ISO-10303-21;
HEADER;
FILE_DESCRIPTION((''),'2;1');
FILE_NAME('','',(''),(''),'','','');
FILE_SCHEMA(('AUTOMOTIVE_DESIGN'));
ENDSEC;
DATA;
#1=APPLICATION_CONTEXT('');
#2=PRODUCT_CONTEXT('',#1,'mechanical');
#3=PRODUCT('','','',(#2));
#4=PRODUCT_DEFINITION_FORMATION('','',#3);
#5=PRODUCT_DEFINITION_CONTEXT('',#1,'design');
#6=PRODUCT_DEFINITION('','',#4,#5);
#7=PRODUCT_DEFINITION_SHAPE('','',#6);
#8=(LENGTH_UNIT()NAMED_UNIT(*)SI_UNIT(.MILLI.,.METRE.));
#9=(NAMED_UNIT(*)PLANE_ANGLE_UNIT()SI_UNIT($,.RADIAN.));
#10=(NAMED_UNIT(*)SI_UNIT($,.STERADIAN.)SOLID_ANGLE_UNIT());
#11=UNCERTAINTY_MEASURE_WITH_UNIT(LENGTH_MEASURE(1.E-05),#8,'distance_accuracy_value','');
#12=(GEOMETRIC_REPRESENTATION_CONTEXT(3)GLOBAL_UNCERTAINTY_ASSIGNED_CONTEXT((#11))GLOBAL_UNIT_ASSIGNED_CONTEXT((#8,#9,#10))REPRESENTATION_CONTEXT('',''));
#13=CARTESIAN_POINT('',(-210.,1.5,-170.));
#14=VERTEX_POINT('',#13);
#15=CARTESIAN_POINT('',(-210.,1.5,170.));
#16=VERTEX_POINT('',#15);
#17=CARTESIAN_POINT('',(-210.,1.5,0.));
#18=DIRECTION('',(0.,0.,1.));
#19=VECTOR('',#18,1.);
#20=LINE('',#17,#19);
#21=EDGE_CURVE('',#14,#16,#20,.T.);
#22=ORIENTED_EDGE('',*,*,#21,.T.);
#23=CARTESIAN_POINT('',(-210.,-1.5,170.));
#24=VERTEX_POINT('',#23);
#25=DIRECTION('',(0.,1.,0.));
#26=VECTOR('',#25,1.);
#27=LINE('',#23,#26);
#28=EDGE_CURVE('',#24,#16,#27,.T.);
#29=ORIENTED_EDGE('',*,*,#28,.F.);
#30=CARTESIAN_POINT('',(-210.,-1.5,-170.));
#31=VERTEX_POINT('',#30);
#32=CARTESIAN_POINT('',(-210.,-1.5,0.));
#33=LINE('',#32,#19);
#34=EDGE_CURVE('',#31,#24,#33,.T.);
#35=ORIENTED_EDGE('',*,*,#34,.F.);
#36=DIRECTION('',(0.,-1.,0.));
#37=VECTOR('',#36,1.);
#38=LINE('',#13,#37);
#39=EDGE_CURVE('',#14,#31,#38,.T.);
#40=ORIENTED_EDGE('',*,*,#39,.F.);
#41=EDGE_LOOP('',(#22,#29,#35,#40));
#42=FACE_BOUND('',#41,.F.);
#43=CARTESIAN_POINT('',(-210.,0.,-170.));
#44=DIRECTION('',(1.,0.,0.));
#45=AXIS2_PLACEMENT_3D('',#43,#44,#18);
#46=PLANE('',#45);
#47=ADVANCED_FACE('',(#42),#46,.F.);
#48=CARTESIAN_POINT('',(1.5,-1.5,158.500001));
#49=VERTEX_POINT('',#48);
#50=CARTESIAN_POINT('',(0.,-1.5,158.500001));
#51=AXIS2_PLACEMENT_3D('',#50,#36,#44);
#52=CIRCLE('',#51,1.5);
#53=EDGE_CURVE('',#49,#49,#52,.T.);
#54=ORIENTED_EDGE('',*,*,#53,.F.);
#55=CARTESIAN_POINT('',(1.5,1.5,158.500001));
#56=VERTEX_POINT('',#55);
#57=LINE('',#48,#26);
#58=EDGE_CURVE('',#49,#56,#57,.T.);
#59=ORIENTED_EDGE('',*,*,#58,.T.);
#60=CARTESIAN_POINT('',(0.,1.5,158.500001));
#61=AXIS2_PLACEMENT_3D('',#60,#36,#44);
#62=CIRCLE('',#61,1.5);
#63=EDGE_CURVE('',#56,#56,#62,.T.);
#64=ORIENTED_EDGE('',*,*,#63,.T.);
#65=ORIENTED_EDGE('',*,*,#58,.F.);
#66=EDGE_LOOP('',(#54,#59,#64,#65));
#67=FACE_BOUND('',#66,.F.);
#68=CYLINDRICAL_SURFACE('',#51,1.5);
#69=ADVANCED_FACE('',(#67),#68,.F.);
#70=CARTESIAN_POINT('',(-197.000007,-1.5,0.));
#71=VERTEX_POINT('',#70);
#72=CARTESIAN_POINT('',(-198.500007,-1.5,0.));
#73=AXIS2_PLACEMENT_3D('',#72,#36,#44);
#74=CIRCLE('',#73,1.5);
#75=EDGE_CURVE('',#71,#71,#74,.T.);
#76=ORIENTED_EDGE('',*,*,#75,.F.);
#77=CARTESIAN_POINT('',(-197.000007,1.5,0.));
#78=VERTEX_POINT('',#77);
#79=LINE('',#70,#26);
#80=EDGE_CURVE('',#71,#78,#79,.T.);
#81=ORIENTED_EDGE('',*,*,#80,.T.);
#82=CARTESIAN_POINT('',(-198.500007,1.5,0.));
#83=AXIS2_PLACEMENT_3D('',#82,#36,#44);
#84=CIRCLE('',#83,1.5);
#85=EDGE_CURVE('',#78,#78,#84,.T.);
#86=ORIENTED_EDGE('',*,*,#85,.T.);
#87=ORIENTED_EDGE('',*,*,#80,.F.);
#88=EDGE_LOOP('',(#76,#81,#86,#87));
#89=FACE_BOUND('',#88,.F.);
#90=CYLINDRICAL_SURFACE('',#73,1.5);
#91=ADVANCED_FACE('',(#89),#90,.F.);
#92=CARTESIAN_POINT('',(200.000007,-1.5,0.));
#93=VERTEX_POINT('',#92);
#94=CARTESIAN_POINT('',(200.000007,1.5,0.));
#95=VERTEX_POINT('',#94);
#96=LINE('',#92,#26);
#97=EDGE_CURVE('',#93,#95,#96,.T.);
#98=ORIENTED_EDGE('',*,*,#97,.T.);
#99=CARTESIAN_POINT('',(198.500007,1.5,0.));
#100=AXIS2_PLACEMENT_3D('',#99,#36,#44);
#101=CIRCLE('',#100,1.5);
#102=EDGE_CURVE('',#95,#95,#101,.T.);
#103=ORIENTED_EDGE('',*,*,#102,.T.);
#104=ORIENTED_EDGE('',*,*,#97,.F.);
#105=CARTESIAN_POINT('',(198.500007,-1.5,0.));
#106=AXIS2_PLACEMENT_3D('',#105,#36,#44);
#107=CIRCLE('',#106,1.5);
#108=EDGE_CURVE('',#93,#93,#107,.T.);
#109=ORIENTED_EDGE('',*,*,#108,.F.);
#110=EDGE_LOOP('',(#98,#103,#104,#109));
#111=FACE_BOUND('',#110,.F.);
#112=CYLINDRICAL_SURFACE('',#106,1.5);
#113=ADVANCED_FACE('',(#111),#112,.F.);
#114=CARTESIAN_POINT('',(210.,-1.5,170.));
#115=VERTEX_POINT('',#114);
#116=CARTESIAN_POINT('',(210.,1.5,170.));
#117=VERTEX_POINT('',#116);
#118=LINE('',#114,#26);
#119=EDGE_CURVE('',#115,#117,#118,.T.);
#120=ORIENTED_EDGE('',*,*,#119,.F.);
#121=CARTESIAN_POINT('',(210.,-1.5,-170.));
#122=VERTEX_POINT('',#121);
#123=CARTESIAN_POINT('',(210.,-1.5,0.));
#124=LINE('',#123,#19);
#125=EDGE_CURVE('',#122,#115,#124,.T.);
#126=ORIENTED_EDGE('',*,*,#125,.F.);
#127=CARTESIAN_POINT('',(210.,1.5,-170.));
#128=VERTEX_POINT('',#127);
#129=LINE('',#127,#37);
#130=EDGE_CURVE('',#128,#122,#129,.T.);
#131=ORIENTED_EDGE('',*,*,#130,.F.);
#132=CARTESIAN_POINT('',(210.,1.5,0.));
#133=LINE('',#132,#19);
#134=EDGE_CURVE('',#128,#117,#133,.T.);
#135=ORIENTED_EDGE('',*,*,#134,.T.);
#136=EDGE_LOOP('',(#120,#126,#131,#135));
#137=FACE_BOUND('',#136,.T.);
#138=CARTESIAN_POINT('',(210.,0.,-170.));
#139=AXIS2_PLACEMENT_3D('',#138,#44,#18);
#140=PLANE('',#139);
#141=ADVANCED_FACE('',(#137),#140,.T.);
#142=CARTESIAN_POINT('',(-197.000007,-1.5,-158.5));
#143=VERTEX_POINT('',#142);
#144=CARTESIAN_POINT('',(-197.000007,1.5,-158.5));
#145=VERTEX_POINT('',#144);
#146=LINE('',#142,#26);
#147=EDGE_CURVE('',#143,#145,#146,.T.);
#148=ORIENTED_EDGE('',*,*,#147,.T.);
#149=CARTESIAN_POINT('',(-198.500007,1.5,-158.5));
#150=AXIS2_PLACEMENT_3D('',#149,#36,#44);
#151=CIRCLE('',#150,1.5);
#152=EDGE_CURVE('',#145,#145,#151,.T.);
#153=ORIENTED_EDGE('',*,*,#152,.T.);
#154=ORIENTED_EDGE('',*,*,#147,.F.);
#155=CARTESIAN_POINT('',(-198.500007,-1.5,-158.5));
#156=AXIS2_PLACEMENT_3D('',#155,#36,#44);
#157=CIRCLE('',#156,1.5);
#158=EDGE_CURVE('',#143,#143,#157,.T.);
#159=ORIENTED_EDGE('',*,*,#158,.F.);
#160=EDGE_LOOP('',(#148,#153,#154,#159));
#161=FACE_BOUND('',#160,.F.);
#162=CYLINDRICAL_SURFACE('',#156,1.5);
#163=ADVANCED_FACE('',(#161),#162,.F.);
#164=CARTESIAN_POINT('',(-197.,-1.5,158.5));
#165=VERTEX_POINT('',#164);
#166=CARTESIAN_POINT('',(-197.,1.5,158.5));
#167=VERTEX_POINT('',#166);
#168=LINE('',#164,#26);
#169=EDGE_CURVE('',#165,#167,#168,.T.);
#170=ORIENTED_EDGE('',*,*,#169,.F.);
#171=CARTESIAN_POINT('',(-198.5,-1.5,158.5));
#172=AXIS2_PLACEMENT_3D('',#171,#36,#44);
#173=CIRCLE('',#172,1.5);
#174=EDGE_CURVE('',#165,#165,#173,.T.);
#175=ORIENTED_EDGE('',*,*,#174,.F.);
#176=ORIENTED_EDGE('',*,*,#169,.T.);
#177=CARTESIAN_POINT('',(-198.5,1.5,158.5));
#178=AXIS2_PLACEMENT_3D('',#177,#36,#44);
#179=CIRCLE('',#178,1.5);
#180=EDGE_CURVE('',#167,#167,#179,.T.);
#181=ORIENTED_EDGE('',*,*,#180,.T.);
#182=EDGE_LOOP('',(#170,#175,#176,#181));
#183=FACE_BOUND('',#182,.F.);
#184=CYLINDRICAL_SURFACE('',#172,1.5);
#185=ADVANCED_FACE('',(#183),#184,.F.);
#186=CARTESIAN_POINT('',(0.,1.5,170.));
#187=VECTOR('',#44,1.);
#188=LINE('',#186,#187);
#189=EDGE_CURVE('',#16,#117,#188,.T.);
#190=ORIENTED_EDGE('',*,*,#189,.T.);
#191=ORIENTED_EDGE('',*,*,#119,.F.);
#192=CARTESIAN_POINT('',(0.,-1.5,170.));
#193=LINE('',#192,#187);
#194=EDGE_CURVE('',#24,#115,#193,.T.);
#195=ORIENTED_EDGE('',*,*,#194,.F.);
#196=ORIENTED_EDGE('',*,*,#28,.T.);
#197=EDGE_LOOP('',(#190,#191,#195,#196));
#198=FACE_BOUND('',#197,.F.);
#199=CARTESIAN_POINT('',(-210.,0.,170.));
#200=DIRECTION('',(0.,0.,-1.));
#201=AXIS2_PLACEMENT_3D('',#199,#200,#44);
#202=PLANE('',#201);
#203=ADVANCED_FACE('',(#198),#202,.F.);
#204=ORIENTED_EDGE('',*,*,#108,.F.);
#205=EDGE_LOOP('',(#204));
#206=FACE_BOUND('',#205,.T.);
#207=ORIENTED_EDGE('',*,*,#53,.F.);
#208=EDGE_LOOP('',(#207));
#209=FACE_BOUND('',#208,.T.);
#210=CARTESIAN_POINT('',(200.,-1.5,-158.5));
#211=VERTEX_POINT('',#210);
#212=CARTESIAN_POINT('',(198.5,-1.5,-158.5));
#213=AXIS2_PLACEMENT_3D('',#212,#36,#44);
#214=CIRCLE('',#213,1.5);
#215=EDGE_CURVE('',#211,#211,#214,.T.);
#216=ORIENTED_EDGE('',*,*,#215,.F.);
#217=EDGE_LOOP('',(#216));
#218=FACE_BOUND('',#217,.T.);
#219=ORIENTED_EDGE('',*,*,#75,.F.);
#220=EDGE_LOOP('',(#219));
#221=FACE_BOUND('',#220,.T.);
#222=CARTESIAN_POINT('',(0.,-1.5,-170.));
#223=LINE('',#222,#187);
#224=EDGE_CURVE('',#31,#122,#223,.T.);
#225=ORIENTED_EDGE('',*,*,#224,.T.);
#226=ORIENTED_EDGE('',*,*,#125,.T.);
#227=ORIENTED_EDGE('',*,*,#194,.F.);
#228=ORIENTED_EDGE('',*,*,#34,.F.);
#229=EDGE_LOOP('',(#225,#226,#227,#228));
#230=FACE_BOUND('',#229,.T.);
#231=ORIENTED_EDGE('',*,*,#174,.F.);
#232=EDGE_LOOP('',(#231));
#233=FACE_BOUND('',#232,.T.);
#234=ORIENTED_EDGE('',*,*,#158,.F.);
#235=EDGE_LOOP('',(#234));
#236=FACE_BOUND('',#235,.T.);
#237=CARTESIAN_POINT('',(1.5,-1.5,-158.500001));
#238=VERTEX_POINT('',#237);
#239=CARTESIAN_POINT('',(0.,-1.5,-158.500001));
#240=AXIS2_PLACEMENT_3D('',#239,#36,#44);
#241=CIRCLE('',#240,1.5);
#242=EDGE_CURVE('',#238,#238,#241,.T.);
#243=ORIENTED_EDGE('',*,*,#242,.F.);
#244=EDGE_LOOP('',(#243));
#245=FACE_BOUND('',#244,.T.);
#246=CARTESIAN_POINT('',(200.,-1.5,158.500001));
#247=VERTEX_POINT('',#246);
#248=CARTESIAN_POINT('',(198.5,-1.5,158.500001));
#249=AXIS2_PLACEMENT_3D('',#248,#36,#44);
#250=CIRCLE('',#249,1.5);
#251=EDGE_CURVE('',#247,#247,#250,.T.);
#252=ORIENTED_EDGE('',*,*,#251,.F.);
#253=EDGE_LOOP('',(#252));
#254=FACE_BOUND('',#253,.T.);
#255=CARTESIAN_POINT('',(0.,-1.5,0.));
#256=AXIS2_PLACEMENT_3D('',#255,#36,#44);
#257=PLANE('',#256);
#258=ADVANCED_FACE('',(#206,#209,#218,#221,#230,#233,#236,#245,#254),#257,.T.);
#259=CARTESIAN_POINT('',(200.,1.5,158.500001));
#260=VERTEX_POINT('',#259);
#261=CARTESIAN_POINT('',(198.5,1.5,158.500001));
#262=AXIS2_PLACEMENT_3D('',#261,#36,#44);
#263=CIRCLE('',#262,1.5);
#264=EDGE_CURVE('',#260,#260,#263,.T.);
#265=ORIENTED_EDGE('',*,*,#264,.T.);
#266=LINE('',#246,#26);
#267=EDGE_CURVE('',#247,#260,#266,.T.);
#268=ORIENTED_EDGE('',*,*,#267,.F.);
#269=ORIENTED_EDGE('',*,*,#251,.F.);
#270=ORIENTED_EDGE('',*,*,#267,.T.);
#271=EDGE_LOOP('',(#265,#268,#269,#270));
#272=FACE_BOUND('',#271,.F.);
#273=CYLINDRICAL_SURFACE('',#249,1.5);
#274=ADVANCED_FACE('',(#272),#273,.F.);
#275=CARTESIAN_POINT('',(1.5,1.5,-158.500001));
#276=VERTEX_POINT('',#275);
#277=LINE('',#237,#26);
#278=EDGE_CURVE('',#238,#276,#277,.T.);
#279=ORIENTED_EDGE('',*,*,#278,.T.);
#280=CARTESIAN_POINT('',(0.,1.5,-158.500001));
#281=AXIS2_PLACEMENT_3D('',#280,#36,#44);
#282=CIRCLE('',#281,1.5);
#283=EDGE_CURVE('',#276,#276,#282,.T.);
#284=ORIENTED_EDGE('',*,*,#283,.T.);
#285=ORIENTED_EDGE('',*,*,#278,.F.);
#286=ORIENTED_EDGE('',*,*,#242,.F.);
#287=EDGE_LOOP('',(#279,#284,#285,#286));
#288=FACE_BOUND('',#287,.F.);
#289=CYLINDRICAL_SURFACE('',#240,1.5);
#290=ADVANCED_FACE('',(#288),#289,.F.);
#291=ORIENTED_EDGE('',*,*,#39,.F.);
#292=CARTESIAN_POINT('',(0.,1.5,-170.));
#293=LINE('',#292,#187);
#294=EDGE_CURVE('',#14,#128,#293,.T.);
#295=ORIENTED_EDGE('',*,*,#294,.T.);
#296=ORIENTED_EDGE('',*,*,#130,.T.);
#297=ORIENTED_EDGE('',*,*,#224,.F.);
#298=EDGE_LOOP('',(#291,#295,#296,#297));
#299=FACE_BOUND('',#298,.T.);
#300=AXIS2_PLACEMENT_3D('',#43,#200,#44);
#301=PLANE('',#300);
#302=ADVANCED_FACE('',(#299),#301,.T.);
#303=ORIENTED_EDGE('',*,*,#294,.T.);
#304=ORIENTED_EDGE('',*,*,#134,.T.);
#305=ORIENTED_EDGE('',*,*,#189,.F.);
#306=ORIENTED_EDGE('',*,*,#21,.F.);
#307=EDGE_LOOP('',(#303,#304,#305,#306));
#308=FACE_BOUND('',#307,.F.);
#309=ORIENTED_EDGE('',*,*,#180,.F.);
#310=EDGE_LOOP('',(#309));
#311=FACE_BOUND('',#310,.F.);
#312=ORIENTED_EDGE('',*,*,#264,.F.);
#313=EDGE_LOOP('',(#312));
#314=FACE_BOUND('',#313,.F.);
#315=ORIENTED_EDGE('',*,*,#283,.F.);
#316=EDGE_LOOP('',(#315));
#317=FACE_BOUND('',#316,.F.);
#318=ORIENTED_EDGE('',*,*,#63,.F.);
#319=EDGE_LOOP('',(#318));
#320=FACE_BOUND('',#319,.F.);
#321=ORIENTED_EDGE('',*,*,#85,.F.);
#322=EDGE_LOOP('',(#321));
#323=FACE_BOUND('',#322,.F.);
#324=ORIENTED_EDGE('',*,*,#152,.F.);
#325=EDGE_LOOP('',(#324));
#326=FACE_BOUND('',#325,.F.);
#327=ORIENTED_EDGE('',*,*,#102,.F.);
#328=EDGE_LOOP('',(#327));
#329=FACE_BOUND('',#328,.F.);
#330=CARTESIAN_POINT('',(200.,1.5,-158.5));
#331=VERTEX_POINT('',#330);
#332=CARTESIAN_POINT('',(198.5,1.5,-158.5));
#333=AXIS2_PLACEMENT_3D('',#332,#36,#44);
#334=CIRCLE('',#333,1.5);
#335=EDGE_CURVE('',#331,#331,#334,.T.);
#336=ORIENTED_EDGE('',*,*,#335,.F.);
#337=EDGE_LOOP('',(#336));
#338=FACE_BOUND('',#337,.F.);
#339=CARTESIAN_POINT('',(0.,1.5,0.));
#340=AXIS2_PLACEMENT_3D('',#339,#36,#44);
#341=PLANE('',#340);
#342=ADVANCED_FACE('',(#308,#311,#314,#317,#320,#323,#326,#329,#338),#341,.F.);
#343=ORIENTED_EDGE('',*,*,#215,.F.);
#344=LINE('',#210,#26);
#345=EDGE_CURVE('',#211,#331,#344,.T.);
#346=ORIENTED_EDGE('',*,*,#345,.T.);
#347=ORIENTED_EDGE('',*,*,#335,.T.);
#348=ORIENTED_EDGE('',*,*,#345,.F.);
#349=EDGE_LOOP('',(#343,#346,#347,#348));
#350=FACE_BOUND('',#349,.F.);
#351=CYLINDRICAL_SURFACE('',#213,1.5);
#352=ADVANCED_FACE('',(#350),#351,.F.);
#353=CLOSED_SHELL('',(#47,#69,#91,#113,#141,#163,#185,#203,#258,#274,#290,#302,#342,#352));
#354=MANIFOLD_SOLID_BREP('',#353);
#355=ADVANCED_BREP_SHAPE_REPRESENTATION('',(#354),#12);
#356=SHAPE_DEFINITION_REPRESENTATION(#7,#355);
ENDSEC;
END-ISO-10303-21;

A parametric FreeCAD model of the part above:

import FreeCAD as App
import Part
import Sketcher
from FreeCAD import Vector
Q = App.Units.Quantity


def add_polygon(sketch, points):
    """Adds a closed chain of lines whose ends are joined by coincident constraints."""
    first, n = sketch.GeometryCount, len(points)
    for a, b in zip(points, points[1:] + points[:1]):
        sketch.addGeometry(Part.LineSegment(App.Vector(*a, 0), App.Vector(*b, 0)), False)
    for i in range(n):
        sketch.addConstraint(Sketcher.Constraint("Coincident", first + i, 2, first + (i + 1) % n, 1))

doc = App.newDocument("Part")
body = doc.addObject("PartDesign::Body", "Body")

# Sketch on XZ plane
sketch1 = doc.addObject("Sketcher::SketchObject", "Sketch")
body.addObject(sketch1)
sketch1.AttachmentSupport = (doc.XZ_Plane, [""])
sketch1.MapMode = "FlatFace"
add_polygon(sketch1, [(-210, 170), (-210, -170), (210, -170), (210, 170)])  # lines 0-3
sketch1.addConstraint([
    Sketcher.Constraint("Vertical", 0),
    Sketcher.Constraint("Horizontal", 1),
    Sketcher.Constraint("Vertical", 2),
    Sketcher.Constraint("Horizontal", 3),
    Sketcher.Constraint("Symmetric", 0, 2, 2, 2, -1, 1),
    Sketcher.Constraint("DistanceX", 1, 1, 1, 2, Q("420 mm")),
    Sketcher.Constraint("DistanceY", 0, 2, 0, 1, Q("340 mm")),
])
pad1 = doc.addObject("PartDesign::Pad", "Pad")
body.addObject(pad1)
pad1.Profile = sketch1
pad1.Length = 3
pad1.Midplane = True

# Sketch on XZ plane
sketch2 = doc.addObject("Sketcher::SketchObject", "Sketch001")
body.addObject(sketch2)
sketch2.AttachmentSupport = (doc.XZ_Plane, [""])
sketch2.MapMode = "FlatFace"
sketch2.AttachmentOffset = App.Placement(Vector(0, 0, 1.5), App.Rotation())
sketch2.addGeometry([
    Part.Circle(Vector(-198.5, 158.5, 0), Vector(0, 0, 1), 1.5),  # 0
    Part.Circle(Vector(198.5, -158.5, 0), Vector(0, 0, 1), 1.5),  # 1
    Part.Circle(Vector(198.5, 158.500001, 0), Vector(0, 0, 1), 1.5),  # 2
    Part.Circle(Vector(0, 158.500001, 0), Vector(0, 0, 1), 1.5),  # 3
    Part.Circle(Vector(198.500007, 0, 0), Vector(0, 0, 1), 1.5),  # 4
    Part.Circle(Vector(-198.500007, -158.5, 0), Vector(0, 0, 1), 1.5),  # 5
    Part.Circle(Vector(-198.500007, 0, 0), Vector(0, 0, 1), 1.5),  # 6
    Part.Circle(Vector(0, -158.500001, 0), Vector(0, 0, 1), 1.5),  # 7
], False)
sketch2.addConstraint([
    Sketcher.Constraint("Equal", 0, 1),
    Sketcher.Constraint("Equal", 1, 2),
    Sketcher.Constraint("Equal", 2, 3),
    Sketcher.Constraint("Equal", 3, 4),
    Sketcher.Constraint("Equal", 4, 5),
    Sketcher.Constraint("Equal", 5, 6),
    Sketcher.Constraint("Equal", 6, 7),
    Sketcher.Constraint("Symmetric", 0, 3, 1, 3, -1, 1),
    Sketcher.Constraint("Symmetric", 2, 3, 5, 3, -1, 1),
    Sketcher.Constraint("Symmetric", 4, 3, 6, 3, -1, 1),
    Sketcher.Constraint("Symmetric", 3, 3, 7, 3, -1, 1),
    Sketcher.Constraint("Symmetric", 0, 3, 2, 3, -2),
    Sketcher.Constraint("PointOnObject", 3, 3, -2),
    Sketcher.Constraint("PointOnObject", 4, 3, -1),
    Sketcher.Constraint("Horizontal", 2, 3, 3, 3),
    Sketcher.Constraint("Vertical", 5, 3, 6, 3),
    Sketcher.Constraint("Diameter", 0, Q("3 mm")),
    Sketcher.Constraint("DistanceX", 0, 3, 1, 3, Q("397 mm")),
    Sketcher.Constraint("DistanceY", 1, 3, 0, 3, Q("317 mm")),
])
pocket1 = doc.addObject("PartDesign::Pocket", "Pocket")
body.addObject(pocket1)
pocket1.Profile = sketch2
pocket1.Length = 25

doc.recompute()
